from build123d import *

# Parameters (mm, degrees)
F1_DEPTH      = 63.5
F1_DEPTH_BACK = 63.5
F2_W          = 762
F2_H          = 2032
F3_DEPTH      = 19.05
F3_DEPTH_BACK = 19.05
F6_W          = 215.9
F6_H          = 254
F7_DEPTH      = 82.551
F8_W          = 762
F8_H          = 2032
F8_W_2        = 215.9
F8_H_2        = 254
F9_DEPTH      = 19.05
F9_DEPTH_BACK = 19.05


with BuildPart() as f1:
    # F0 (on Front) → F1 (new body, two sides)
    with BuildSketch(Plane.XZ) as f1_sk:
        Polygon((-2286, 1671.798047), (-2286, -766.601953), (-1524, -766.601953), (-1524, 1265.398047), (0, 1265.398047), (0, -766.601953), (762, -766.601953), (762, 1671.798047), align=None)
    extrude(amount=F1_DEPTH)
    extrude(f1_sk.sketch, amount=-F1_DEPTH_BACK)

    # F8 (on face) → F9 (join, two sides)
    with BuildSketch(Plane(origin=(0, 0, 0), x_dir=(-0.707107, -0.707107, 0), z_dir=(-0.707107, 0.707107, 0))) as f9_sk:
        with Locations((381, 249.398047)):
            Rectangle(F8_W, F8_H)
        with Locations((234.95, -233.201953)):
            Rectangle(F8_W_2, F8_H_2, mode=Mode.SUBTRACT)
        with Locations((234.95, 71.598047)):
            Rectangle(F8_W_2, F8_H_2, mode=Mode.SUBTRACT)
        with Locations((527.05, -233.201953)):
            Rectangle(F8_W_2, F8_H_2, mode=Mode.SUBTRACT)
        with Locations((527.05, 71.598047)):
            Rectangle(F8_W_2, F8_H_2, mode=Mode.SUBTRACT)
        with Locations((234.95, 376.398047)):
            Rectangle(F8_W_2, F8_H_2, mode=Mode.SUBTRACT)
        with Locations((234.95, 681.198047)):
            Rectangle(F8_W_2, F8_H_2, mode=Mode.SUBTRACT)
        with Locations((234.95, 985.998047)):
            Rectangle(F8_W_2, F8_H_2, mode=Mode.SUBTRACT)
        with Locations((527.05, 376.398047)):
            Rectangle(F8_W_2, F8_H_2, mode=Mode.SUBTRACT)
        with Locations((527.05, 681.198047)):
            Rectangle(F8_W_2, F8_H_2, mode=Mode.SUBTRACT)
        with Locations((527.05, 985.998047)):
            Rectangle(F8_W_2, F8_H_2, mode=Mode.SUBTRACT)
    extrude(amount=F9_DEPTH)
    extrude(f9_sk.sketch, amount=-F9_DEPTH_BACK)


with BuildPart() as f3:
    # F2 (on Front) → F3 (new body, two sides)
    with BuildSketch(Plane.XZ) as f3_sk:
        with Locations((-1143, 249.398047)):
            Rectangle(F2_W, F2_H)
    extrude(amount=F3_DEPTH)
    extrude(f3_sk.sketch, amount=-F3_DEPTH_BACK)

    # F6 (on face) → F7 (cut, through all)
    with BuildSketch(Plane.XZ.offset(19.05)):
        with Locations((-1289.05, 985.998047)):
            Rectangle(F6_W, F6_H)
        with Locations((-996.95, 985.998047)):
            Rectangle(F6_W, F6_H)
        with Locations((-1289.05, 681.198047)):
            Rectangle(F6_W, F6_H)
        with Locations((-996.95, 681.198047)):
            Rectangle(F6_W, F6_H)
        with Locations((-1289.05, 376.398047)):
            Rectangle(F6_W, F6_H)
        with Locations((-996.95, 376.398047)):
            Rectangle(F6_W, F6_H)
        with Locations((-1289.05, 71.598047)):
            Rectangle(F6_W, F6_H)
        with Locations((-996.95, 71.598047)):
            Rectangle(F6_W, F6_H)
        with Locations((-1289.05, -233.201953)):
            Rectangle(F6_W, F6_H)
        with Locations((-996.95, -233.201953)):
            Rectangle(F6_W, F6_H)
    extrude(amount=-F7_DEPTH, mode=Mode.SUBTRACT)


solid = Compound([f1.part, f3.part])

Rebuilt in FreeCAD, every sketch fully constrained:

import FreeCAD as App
import Part
import Sketcher
from FreeCAD import Vector
Q = App.Units.Quantity

doc = App.newDocument("Part")
body = doc.addObject("PartDesign::Body", "Body")

sketch1 = body.newObject("Sketcher::SketchObject", "Sketch")
sketch1.AttachmentSupport = (doc.getObject("XZ_Plane"), [""])
sketch1.MapMode = "FlatFace"
sketch1.addGeometry([
    Part.LineSegment(Vector(-2286, 1672, 0), Vector(-2286, -767, 0)),
    Part.LineSegment(Vector(-2286, -767, 0), Vector(-1524, -767, 0)),
    Part.LineSegment(Vector(-1524, -767, 0), Vector(-1524, 1265, 0)),
    Part.LineSegment(Vector(-1524, 1265, 0), Vector(0, 1265, 0)),
    Part.LineSegment(Vector(0, 1265, 0), Vector(0, -767, 0)),
    Part.LineSegment(Vector(0, -767, 0), Vector(762, -767, 0)),
    Part.LineSegment(Vector(762, -767, 0), Vector(762, 1672, 0)),
    Part.LineSegment(Vector(762, 1672, 0), Vector(-2286, 1672, 0)),
], False)
sketch1.addConstraint([
    Sketcher.Constraint("Coincident", 0, 2, 1, 1),
    Sketcher.Constraint("Coincident", 1, 2, 2, 1),
    Sketcher.Constraint("Coincident", 2, 2, 3, 1),
    Sketcher.Constraint("Coincident", 3, 2, 4, 1),
    Sketcher.Constraint("Coincident", 4, 2, 5, 1),
    Sketcher.Constraint("Coincident", 5, 2, 6, 1),
    Sketcher.Constraint("Coincident", 6, 2, 7, 1),
    Sketcher.Constraint("Coincident", 7, 2, 0, 1),
    Sketcher.Constraint("Vertical", 0),
    Sketcher.Constraint("Horizontal", 1),
    Sketcher.Constraint("Vertical", 2),
    Sketcher.Constraint("Horizontal", 3),
    Sketcher.Constraint("Vertical", 4),
    Sketcher.Constraint("Horizontal", 5),
    Sketcher.Constraint("Vertical", 6),
    Sketcher.Constraint("Horizontal", 7),
    Sketcher.Constraint("PointOnObject", 3, 2, -2),
    Sketcher.Constraint("Horizontal", 1, 2, 4, 2),
    Sketcher.Constraint("Equal", 1, 5),
    Sketcher.Constraint("DistanceX", 1, 1, 1, 2, Q("30 in")),
    Sketcher.Constraint("DistanceX", 3, 1, 3, 2, Q("60 in")),
    Sketcher.Constraint("DistanceY", 0, 2, 0, 1, Q("96 in")),
    Sketcher.Constraint("DistanceY", 2, 1, 2, 2, Q("80 in")),
    Sketcher.Constraint("DistanceY", 0, 2, -1, 1, 766.601953),
])
pad1 = body.newObject("PartDesign::Pad", "Pad")
pad1.Profile = sketch1
pad1.Type = "TwoLengths"
pad1.Length = Q("2.5 in")
pad1.Length2 = Q("2.5 in")

sketch2 = body.newObject("Sketcher::SketchObject", "Sketch001")
sketch2.Placement = App.Placement(Vector(0, 0, 0), App.Rotation(Vector(-0.707106781, -0.707106781, 0), Vector(0, 0, 0.999999999), Vector(-0.707106781, 0.707106781, 0), "ZXY"))
sketch2.addGeometry([
    Part.LineSegment(Vector(0, 1265, 0), Vector(0, -767, 0)),
    Part.LineSegment(Vector(0, -767, 0), Vector(762, -767, 0)),
    Part.LineSegment(Vector(762, -767, 0), Vector(762, 1265, 0)),
    Part.LineSegment(Vector(762, 1265, 0), Vector(0, 1265, 0)),
    Part.LineSegment(Vector(343, -360, 0), Vector(127, -360, 0)),
    Part.LineSegment(Vector(127, -360, 0), Vector(127, -106, 0)),
    Part.LineSegment(Vector(127, -106, 0), Vector(343, -106, 0)),
    Part.LineSegment(Vector(343, -106, 0), Vector(343, -360, 0)),
    Part.LineSegment(Vector(343, -55, 0), Vector(127, -55, 0)),
    Part.LineSegment(Vector(127, -55, 0), Vector(127, 199, 0)),
    Part.LineSegment(Vector(127, 199, 0), Vector(343, 199, 0)),
    Part.LineSegment(Vector(343, 199, 0), Vector(343, -55, 0)),
    Part.LineSegment(Vector(635, -360, 0), Vector(419, -360, 0)),
    Part.LineSegment(Vector(419, -360, 0), Vector(419, -106, 0)),
    Part.LineSegment(Vector(419, -106, 0), Vector(635, -106, 0)),
    Part.LineSegment(Vector(635, -106, 0), Vector(635, -360, 0)),
    Part.LineSegment(Vector(635, -55, 0), Vector(419, -55, 0)),
    Part.LineSegment(Vector(419, -55, 0), Vector(419, 199, 0)),
    Part.LineSegment(Vector(419, 199, 0), Vector(635, 199, 0)),
    Part.LineSegment(Vector(635, 199, 0), Vector(635, -55, 0)),
    Part.LineSegment(Vector(343, 249, 0), Vector(127, 249, 0)),
    Part.LineSegment(Vector(127, 249, 0), Vector(127, 503, 0)),
    Part.LineSegment(Vector(127, 503, 0), Vector(343, 503, 0)),
    Part.LineSegment(Vector(343, 503, 0), Vector(343, 249, 0)),
    Part.LineSegment(Vector(343, 554, 0), Vector(127, 554, 0)),
    Part.LineSegment(Vector(127, 554, 0), Vector(127, 808, 0)),
    Part.LineSegment(Vector(127, 808, 0), Vector(343, 808, 0)),
    Part.LineSegment(Vector(343, 808, 0), Vector(343, 554, 0)),
    Part.LineSegment(Vector(343, 859, 0), Vector(127, 859, 0)),
    Part.LineSegment(Vector(127, 859, 0), Vector(127, 1113, 0)),
    Part.LineSegment(Vector(127, 1113, 0), Vector(343, 1113, 0)),
    Part.LineSegment(Vector(343, 1113, 0), Vector(343, 859, 0)),
    Part.LineSegment(Vector(635, 249, 0), Vector(419, 249, 0)),
    Part.LineSegment(Vector(419, 249, 0), Vector(419, 503, 0)),
    Part.LineSegment(Vector(419, 503, 0), Vector(635, 503, 0)),
    Part.LineSegment(Vector(635, 503, 0), Vector(635, 249, 0)),
    Part.LineSegment(Vector(635, 554, 0), Vector(419, 554, 0)),
    Part.LineSegment(Vector(419, 554, 0), Vector(419, 808, 0)),
    Part.LineSegment(Vector(419, 808, 0), Vector(635, 808, 0)),
    Part.LineSegment(Vector(635, 808, 0), Vector(635, 554, 0)),
    Part.LineSegment(Vector(635, 859, 0), Vector(419, 859, 0)),
    Part.LineSegment(Vector(419, 859, 0), Vector(419, 1113, 0)),
    Part.LineSegment(Vector(419, 1113, 0), Vector(635, 1113, 0)),
    Part.LineSegment(Vector(635, 1113, 0), Vector(635, 859, 0)),
], False)
sketch2.addConstraint([
    Sketcher.Constraint("Coincident", 0, 2, 1, 1),
    Sketcher.Constraint("Coincident", 1, 2, 2, 1),
    Sketcher.Constraint("Coincident", 2, 2, 3, 1),
    Sketcher.Constraint("Coincident", 3, 2, 0, 1),
    Sketcher.Constraint("Coincident", 4, 2, 5, 1),
    Sketcher.Constraint("Coincident", 5, 2, 6, 1),
    Sketcher.Constraint("Coincident", 6, 2, 7, 1),
    Sketcher.Constraint("Coincident", 7, 2, 4, 1),
    Sketcher.Constraint("Coincident", 8, 2, 9, 1),
    Sketcher.Constraint("Coincident", 9, 2, 10, 1),
    Sketcher.Constraint("Coincident", 10, 2, 11, 1),
    Sketcher.Constraint("Coincident", 11, 2, 8, 1),
    Sketcher.Constraint("Coincident", 12, 2, 13, 1),
    Sketcher.Constraint("Coincident", 13, 2, 14, 1),
    Sketcher.Constraint("Coincident", 14, 2, 15, 1),
    Sketcher.Constraint("Coincident", 15, 2, 12, 1),
    Sketcher.Constraint("Coincident", 16, 2, 17, 1),
    Sketcher.Constraint("Coincident", 17, 2, 18, 1),
    Sketcher.Constraint("Coincident", 18, 2, 19, 1),
    Sketcher.Constraint("Coincident", 19, 2, 16, 1),
    Sketcher.Constraint("Coincident", 20, 2, 21, 1),
    Sketcher.Constraint("Coincident", 21, 2, 22, 1),
    Sketcher.Constraint("Coincident", 22, 2, 23, 1),
    Sketcher.Constraint("Coincident", 23, 2, 20, 1),
    Sketcher.Constraint("Coincident", 24, 2, 25, 1),
    Sketcher.Constraint("Coincident", 25, 2, 26, 1),
    Sketcher.Constraint("Coincident", 26, 2, 27, 1),
    Sketcher.Constraint("Coincident", 27, 2, 24, 1),
    Sketcher.Constraint("Coincident", 28, 2, 29, 1),
    Sketcher.Constraint("Coincident", 29, 2, 30, 1),
    Sketcher.Constraint("Coincident", 30, 2, 31, 1),
    Sketcher.Constraint("Coincident", 31, 2, 28, 1),
    Sketcher.Constraint("Coincident", 32, 2, 33, 1),
    Sketcher.Constraint("Coincident", 33, 2, 34, 1),
    Sketcher.Constraint("Coincident", 34, 2, 35, 1),
    Sketcher.Constraint("Coincident", 35, 2, 32, 1),
    Sketcher.Constraint("Coincident", 36, 2, 37, 1),
    Sketcher.Constraint("Coincident", 37, 2, 38, 1),
    Sketcher.Constraint("Coincident", 38, 2, 39, 1),
    Sketcher.Constraint("Coincident", 39, 2, 36, 1),
    Sketcher.Constraint("Coincident", 40, 2, 41, 1),
    Sketcher.Constraint("Coincident", 41, 2, 42, 1),
    Sketcher.Constraint("Coincident", 42, 2, 43, 1),
    Sketcher.Constraint("Coincident", 43, 2, 40, 1),
    Sketcher.Constraint("Vertical", 0),
    Sketcher.Constraint("Horizontal", 1),
    Sketcher.Constraint("Vertical", 2),
    Sketcher.Constraint("Horizontal", 3),
    Sketcher.Constraint("Horizontal", 4),
    Sketcher.Constraint("Vertical", 5),
    Sketcher.Constraint("Horizontal", 6),
    Sketcher.Constraint("Vertical", 7),
    Sketcher.Constraint("Horizontal", 8),
    Sketcher.Constraint("Vertical", 9),
    Sketcher.Constraint("Horizontal", 10),
    Sketcher.Constraint("Vertical", 11),
    Sketcher.Constraint("Horizontal", 12),
    Sketcher.Constraint("Vertical", 13),
    Sketcher.Constraint("Horizontal", 14),
    Sketcher.Constraint("Vertical", 15),
    Sketcher.Constraint("Horizontal", 16),
    Sketcher.Constraint("Vertical", 17),
    Sketcher.Constraint("Horizontal", 18),
    Sketcher.Constraint("Vertical", 19),
    Sketcher.Constraint("Horizontal", 20),
    Sketcher.Constraint("Vertical", 21),
    Sketcher.Constraint("Horizontal", 22),
    Sketcher.Constraint("Vertical", 23),
    Sketcher.Constraint("Horizontal", 24),
    Sketcher.Constraint("Vertical", 25),
    Sketcher.Constraint("Horizontal", 26),
    Sketcher.Constraint("Vertical", 27),
    Sketcher.Constraint("Horizontal", 28),
    Sketcher.Constraint("Vertical", 29),
    Sketcher.Constraint("Horizontal", 30),
    Sketcher.Constraint("Vertical", 31),
    Sketcher.Constraint("Horizontal", 32),
    Sketcher.Constraint("Vertical", 33),
    Sketcher.Constraint("Horizontal", 34),
    Sketcher.Constraint("Vertical", 35),
    Sketcher.Constraint("Horizontal", 36),
    Sketcher.Constraint("Vertical", 37),
    Sketcher.Constraint("Horizontal", 38),
    Sketcher.Constraint("Vertical", 39),
    Sketcher.Constraint("Horizontal", 40),
    Sketcher.Constraint("Vertical", 41),
    Sketcher.Constraint("Horizontal", 42),
    Sketcher.Constraint("Vertical", 43),
    Sketcher.Constraint("PointOnObject", 0, 2, -2),
    Sketcher.Constraint("Horizontal", 7, 2, 12, 2),
    Sketcher.Constraint("Horizontal", 6, 2, 13, 2),
    Sketcher.Constraint("Horizontal", 11, 2, 16, 2),
    Sketcher.Constraint("Horizontal", 10, 2, 17, 2),
    Sketcher.Constraint("Horizontal", 23, 2, 32, 2),
    Sketcher.Constraint("Horizontal", 22, 2, 33, 2),
    Sketcher.Constraint("Horizontal", 27, 2, 36, 2),
    Sketcher.Constraint("Horizontal", 26, 2, 37, 2),
    Sketcher.Constraint("Horizontal", 31, 2, 40, 2),
    Sketcher.Constraint("Horizontal", 30, 2, 41, 2),
    Sketcher.Constraint("Vertical", 5, 2, 8, 2),
    Sketcher.Constraint("Vertical", 7, 2, 10, 2),
    Sketcher.Constraint("Vertical", 13, 2, 16, 2),
    Sketcher.Constraint("Vertical", 15, 2, 18, 2),
    Sketcher.Constraint("Vertical", 9, 2, 20, 2),
    Sketcher.Constraint("Vertical", 11, 2, 22, 2),
    Sketcher.Constraint("Vertical", 21, 2, 24, 2),
    Sketcher.Constraint("Vertical", 23, 2, 26, 2),
    Sketcher.Constraint("Vertical", 25, 2, 28, 2),
    Sketcher.Constraint("Vertical", 27, 2, 30, 2),
    Sketcher.Constraint("Vertical", 17, 2, 32, 2),
    Sketcher.Constraint("Vertical", 19, 2, 34, 2),
    Sketcher.Constraint("Vertical", 33, 2, 36, 2),
    Sketcher.Constraint("Vertical", 35, 2, 38, 2),
    Sketcher.Constraint("Vertical", 37, 2, 40, 2),
    Sketcher.Constraint("Vertical", 39, 2, 42, 2),
    Sketcher.Constraint("Equal", 10, 12),
    Sketcher.Constraint("Equal", 7, 9),
    Sketcher.Constraint("Equal", 19, 21),
    Sketcher.Constraint("Equal", 23, 25),
    Sketcher.Constraint("Equal", 27, 29),
    Sketcher.Constraint("DistanceX", 1, 1, 1, 2, Q("30 in")),
    Sketcher.Constraint("DistanceY", 0, 2, 0, 1, Q("79.9999999 in")),
    Sketcher.Constraint("DistanceY", 5, 1, 5, 2, Q("10 in")),
    Sketcher.Constraint("DistanceX", 4, 2, 4, 1, Q("8.5 in")),
    Sketcher.Constraint("DistanceX", -1, 1, 4, 2, Q("5 in")),
    Sketcher.Constraint("DistanceX", -1, 1, 14, 2, Q("25 in")),
    Sketcher.Constraint("DistanceY", 0, 2, 4, 2, Q("16 in")),
    Sketcher.Constraint("DistanceY", 5, 2, 8, 2, Q("2 in")),
    Sketcher.Constraint("DistanceY", 9, 2, 20, 2, Q("2 in")),
    Sketcher.Constraint("DistanceY", 21, 2, 24, 2, Q("2 in")),
    Sketcher.Constraint("DistanceY", 25, 2, 28, 2, Q("2 in")),
    Sketcher.Constraint("DistanceY", 0, 2, -1, 1, 766.601952),
])
pad2 = body.newObject("PartDesign::Pad", "Pad001")
pad2.Profile = sketch2
pad2.Type = "TwoLengths"
pad2.Length = Q("0.75 in")
pad2.Length2 = Q("0.75 in")
body2 = doc.addObject("PartDesign::Body", "Body001")

sketch3 = body2.newObject("Sketcher::SketchObject", "Sketch002")
sketch3.AttachmentSupport = (doc.getObject("XZ_Plane001"), [""])
sketch3.MapMode = "FlatFace"
sketch3.addGeometry([
    Part.LineSegment(Vector(-1524, 1265, 0), Vector(-1524, -767, 0)),
    Part.LineSegment(Vector(-1524, -767, 0), Vector(-762, -767, 0)),
    Part.LineSegment(Vector(-762, -767, 0), Vector(-762, 1265, 0)),
    Part.LineSegment(Vector(-762, 1265, 0), Vector(-1524, 1265, 0)),
], False)
sketch3.addConstraint([
    Sketcher.Constraint("Coincident", 0, 2, 1, 1),
    Sketcher.Constraint("Coincident", 1, 2, 2, 1),
    Sketcher.Constraint("Coincident", 2, 2, 3, 1),
    Sketcher.Constraint("Coincident", 3, 2, 0, 1),
    Sketcher.Constraint("Vertical", 0),
    Sketcher.Constraint("Horizontal", 1),
    Sketcher.Constraint("Vertical", 2),
    Sketcher.Constraint("Horizontal", 3),
    Sketcher.Constraint("DistanceX", 1, 1, 1, 2, Q("30 in")),
    Sketcher.Constraint("DistanceY", 0, 2, 0, 1, Q("80 in")),
    Sketcher.Constraint("DistanceX", 0, 2, -1, 1, Q("60 in")),
    Sketcher.Constraint("DistanceY", 0, 2, -1, 1, 766.601953),
])
pad3 = body2.newObject("PartDesign::Pad", "Pad002")
pad3.Profile = sketch3
pad3.Type = "TwoLengths"
pad3.Length = Q("0.75 in")
pad3.Length2 = Q("0.75 in")

sketch4 = body2.newObject("Sketcher::SketchObject", "Sketch003")
sketch4.AttachmentSupport = (doc.getObject("XZ_Plane001"), [""])
sketch4.MapMode = "FlatFace"
sketch4.AttachmentOffset = App.Placement(Vector(0, 0, 0.75 * 25.4), App.Rotation())
sketch4.addGeometry([
    Part.LineSegment(Vector(-1397, 1113, 0), Vector(-1397, 859, 0)),
    Part.LineSegment(Vector(-1397, 859, 0), Vector(-1181, 859, 0)),
    Part.LineSegment(Vector(-1181, 859, 0), Vector(-1181, 1113, 0)),
    Part.LineSegment(Vector(-1181, 1113, 0), Vector(-1397, 1113, 0)),
    Part.LineSegment(Vector(-1105, 1113, 0), Vector(-1105, 859, 0)),
    Part.LineSegment(Vector(-1105, 859, 0), Vector(-889, 859, 0)),
    Part.LineSegment(Vector(-889, 859, 0), Vector(-889, 1113, 0)),
    Part.LineSegment(Vector(-889, 1113, 0), Vector(-1105, 1113, 0)),
    Part.LineSegment(Vector(-1397, 808, 0), Vector(-1397, 554, 0)),
    Part.LineSegment(Vector(-1397, 554, 0), Vector(-1181, 554, 0)),
    Part.LineSegment(Vector(-1181, 554, 0), Vector(-1181, 808, 0)),
    Part.LineSegment(Vector(-1181, 808, 0), Vector(-1397, 808, 0)),
    Part.LineSegment(Vector(-1105, 808, 0), Vector(-1105, 554, 0)),
    Part.LineSegment(Vector(-1105, 554, 0), Vector(-889, 554, 0)),
    Part.LineSegment(Vector(-889, 554, 0), Vector(-889, 808, 0)),
    Part.LineSegment(Vector(-889, 808, 0), Vector(-1105, 808, 0)),
    Part.LineSegment(Vector(-1397, 503, 0), Vector(-1397, 249, 0)),
    Part.LineSegment(Vector(-1397, 249, 0), Vector(-1181, 249, 0)),
    Part.LineSegment(Vector(-1181, 249, 0), Vector(-1181, 503, 0)),
    Part.LineSegment(Vector(-1181, 503, 0), Vector(-1397, 503, 0)),
    Part.LineSegment(Vector(-1105, 503, 0), Vector(-1105, 249, 0)),
    Part.LineSegment(Vector(-1105, 249, 0), Vector(-889, 249, 0)),
    Part.LineSegment(Vector(-889, 249, 0), Vector(-889, 503, 0)),
    Part.LineSegment(Vector(-889, 503, 0), Vector(-1105, 503, 0)),
    Part.LineSegment(Vector(-1397, 199, 0), Vector(-1397, -55, 0)),
    Part.LineSegment(Vector(-1397, -55, 0), Vector(-1181, -55, 0)),
    Part.LineSegment(Vector(-1181, -55, 0), Vector(-1181, 199, 0)),
    Part.LineSegment(Vector(-1181, 199, 0), Vector(-1397, 199, 0)),
    Part.LineSegment(Vector(-1105, 199, 0), Vector(-1105, -55, 0)),
    Part.LineSegment(Vector(-1105, -55, 0), Vector(-889, -55, 0)),
    Part.LineSegment(Vector(-889, -55, 0), Vector(-889, 199, 0)),
    Part.LineSegment(Vector(-889, 199, 0), Vector(-1105, 199, 0)),
    Part.LineSegment(Vector(-1397, -106, 0), Vector(-1397, -360, 0)),
    Part.LineSegment(Vector(-1397, -360, 0), Vector(-1181, -360, 0)),
    Part.LineSegment(Vector(-1181, -360, 0), Vector(-1181, -106, 0)),
    Part.LineSegment(Vector(-1181, -106, 0), Vector(-1397, -106, 0)),
    Part.LineSegment(Vector(-1105, -106, 0), Vector(-1105, -360, 0)),
    Part.LineSegment(Vector(-1105, -360, 0), Vector(-889, -360, 0)),
    Part.LineSegment(Vector(-889, -360, 0), Vector(-889, -106, 0)),
    Part.LineSegment(Vector(-889, -106, 0), Vector(-1105, -106, 0)),
], False)
sketch4.addConstraint([
    Sketcher.Constraint("Coincident", 0, 2, 1, 1),
    Sketcher.Constraint("Coincident", 1, 2, 2, 1),
    Sketcher.Constraint("Coincident", 2, 2, 3, 1),
    Sketcher.Constraint("Coincident", 3, 2, 0, 1),
    Sketcher.Constraint("Coincident", 4, 2, 5, 1),
    Sketcher.Constraint("Coincident", 5, 2, 6, 1),
    Sketcher.Constraint("Coincident", 6, 2, 7, 1),
    Sketcher.Constraint("Coincident", 7, 2, 4, 1),
    Sketcher.Constraint("Coincident", 8, 2, 9, 1),
    Sketcher.Constraint("Coincident", 9, 2, 10, 1),
    Sketcher.Constraint("Coincident", 10, 2, 11, 1),
    Sketcher.Constraint("Coincident", 11, 2, 8, 1),
    Sketcher.Constraint("Coincident", 12, 2, 13, 1),
    Sketcher.Constraint("Coincident", 13, 2, 14, 1),
    Sketcher.Constraint("Coincident", 14, 2, 15, 1),
    Sketcher.Constraint("Coincident", 15, 2, 12, 1),
    Sketcher.Constraint("Coincident", 16, 2, 17, 1),
    Sketcher.Constraint("Coincident", 17, 2, 18, 1),
    Sketcher.Constraint("Coincident", 18, 2, 19, 1),
    Sketcher.Constraint("Coincident", 19, 2, 16, 1),
    Sketcher.Constraint("Coincident", 20, 2, 21, 1),
    Sketcher.Constraint("Coincident", 21, 2, 22, 1),
    Sketcher.Constraint("Coincident", 22, 2, 23, 1),
    Sketcher.Constraint("Coincident", 23, 2, 20, 1),
    Sketcher.Constraint("Coincident", 24, 2, 25, 1),
    Sketcher.Constraint("Coincident", 25, 2, 26, 1),
    Sketcher.Constraint("Coincident", 26, 2, 27, 1),
    Sketcher.Constraint("Coincident", 27, 2, 24, 1),
    Sketcher.Constraint("Coincident", 28, 2, 29, 1),
    Sketcher.Constraint("Coincident", 29, 2, 30, 1),
    Sketcher.Constraint("Coincident", 30, 2, 31, 1),
    Sketcher.Constraint("Coincident", 31, 2, 28, 1),
    Sketcher.Constraint("Coincident", 32, 2, 33, 1),
    Sketcher.Constraint("Coincident", 33, 2, 34, 1),
    Sketcher.Constraint("Coincident", 34, 2, 35, 1),
    Sketcher.Constraint("Coincident", 35, 2, 32, 1),
    Sketcher.Constraint("Coincident", 36, 2, 37, 1),
    Sketcher.Constraint("Coincident", 37, 2, 38, 1),
    Sketcher.Constraint("Coincident", 38, 2, 39, 1),
    Sketcher.Constraint("Coincident", 39, 2, 36, 1),
    Sketcher.Constraint("Vertical", 0),
    Sketcher.Constraint("Horizontal", 1),
    Sketcher.Constraint("Vertical", 2),
    Sketcher.Constraint("Horizontal", 3),
    Sketcher.Constraint("Vertical", 4),
    Sketcher.Constraint("Horizontal", 5),
    Sketcher.Constraint("Vertical", 6),
    Sketcher.Constraint("Horizontal", 7),
    Sketcher.Constraint("Vertical", 8),
    Sketcher.Constraint("Horizontal", 9),
    Sketcher.Constraint("Vertical", 10),
    Sketcher.Constraint("Horizontal", 11),
    Sketcher.Constraint("Vertical", 12),
    Sketcher.Constraint("Horizontal", 13),
    Sketcher.Constraint("Vertical", 14),
    Sketcher.Constraint("Horizontal", 15),
    Sketcher.Constraint("Vertical", 16),
    Sketcher.Constraint("Horizontal", 17),
    Sketcher.Constraint("Vertical", 18),
    Sketcher.Constraint("Horizontal", 19),
    Sketcher.Constraint("Vertical", 20),
    Sketcher.Constraint("Horizontal", 21),
    Sketcher.Constraint("Vertical", 22),
    Sketcher.Constraint("Horizontal", 23),
    Sketcher.Constraint("Vertical", 24),
    Sketcher.Constraint("Horizontal", 25),
    Sketcher.Constraint("Vertical", 26),
    Sketcher.Constraint("Horizontal", 27),
    Sketcher.Constraint("Vertical", 28),
    Sketcher.Constraint("Horizontal", 29),
    Sketcher.Constraint("Vertical", 30),
    Sketcher.Constraint("Horizontal", 31),
    Sketcher.Constraint("Vertical", 32),
    Sketcher.Constraint("Horizontal", 33),
    Sketcher.Constraint("Vertical", 34),
    Sketcher.Constraint("Horizontal", 35),
    Sketcher.Constraint("Vertical", 36),
    Sketcher.Constraint("Horizontal", 37),
    Sketcher.Constraint("Vertical", 38),
    Sketcher.Constraint("Horizontal", 39),
    Sketcher.Constraint("Horizontal", 1, 2, 4, 2),
    Sketcher.Constraint("Horizontal", 3, 2, 6, 2),
    Sketcher.Constraint("Horizontal", 9, 2, 12, 2),
    Sketcher.Constraint("Horizontal", 11, 2, 14, 2),
    Sketcher.Constraint("Horizontal", 17, 2, 20, 2),
    Sketcher.Constraint("Horizontal", 19, 2, 22, 2),
    Sketcher.Constraint("Horizontal", 25, 2, 28, 2),
    Sketcher.Constraint("Horizontal", 27, 2, 30, 2),
    Sketcher.Constraint("Horizontal", 33, 2, 36, 2),
    Sketcher.Constraint("Horizontal", 35, 2, 38, 2),
    Sketcher.Constraint("Vertical", 3, 2, 8, 2),
    Sketcher.Constraint("Vertical", 2, 2, 9, 2),
    Sketcher.Constraint("Vertical", 7, 2, 12, 2),
    Sketcher.Constraint("Vertical", 6, 2, 13, 2),
    Sketcher.Constraint("Vertical", 11, 2, 16, 2),
    Sketcher.Constraint("Vertical", 10, 2, 17, 2),
    Sketcher.Constraint("Vertical", 15, 2, 20, 2),
    Sketcher.Constraint("Vertical", 14, 2, 21, 2),
    Sketcher.Constraint("Vertical", 19, 2, 24, 2),
    Sketcher.Constraint("Vertical", 18, 2, 25, 2),
    Sketcher.Constraint("Vertical", 23, 2, 28, 2),
    Sketcher.Constraint("Vertical", 22, 2, 29, 2),
    Sketcher.Constraint("Vertical", 27, 2, 32, 2),
    Sketcher.Constraint("Vertical", 26, 2, 33, 2),
    Sketcher.Constraint("Vertical", 31, 2, 36, 2),
    Sketcher.Constraint("Vertical", 30, 2, 37, 2),
    Sketcher.Constraint("Equal", 3, 5),
    Sketcher.Constraint("Equal", 6, 8),
    Sketcher.Constraint("Equal", 14, 16),
    Sketcher.Constraint("Equal", 22, 24),
    Sketcher.Constraint("Equal", 30, 32),
    Sketcher.Constraint("DistanceY", 0, 2, 0, 1, Q("10 in")),
    Sketcher.Constraint("DistanceX", 1, 1, 1, 2, Q("8.5 in")),
    Sketcher.Constraint("DistanceX", 0, 2, -1, 1, Q("55 in")),
    Sketcher.Constraint("DistanceX", 5, 2, -1, 1, Q("35 in")),
    Sketcher.Constraint("DistanceY", 8, 2, 0, 2, Q("12 in")),
    Sketcher.Constraint("DistanceY", 16, 2, 8, 2, Q("12 in")),
    Sketcher.Constraint("DistanceY", 24, 2, 16, 2, Q("12 in")),
    Sketcher.Constraint("DistanceY", 32, 2, 24, 2, Q("12 in")),
    Sketcher.Constraint("DistanceY", -1, 1, 0, 2, 858.998047),
])
pocket1 = body2.newObject("PartDesign::Pocket", "Pocket")
pocket1.Profile = sketch4
pocket1.Type = "ThroughAll"

doc.recompute()
